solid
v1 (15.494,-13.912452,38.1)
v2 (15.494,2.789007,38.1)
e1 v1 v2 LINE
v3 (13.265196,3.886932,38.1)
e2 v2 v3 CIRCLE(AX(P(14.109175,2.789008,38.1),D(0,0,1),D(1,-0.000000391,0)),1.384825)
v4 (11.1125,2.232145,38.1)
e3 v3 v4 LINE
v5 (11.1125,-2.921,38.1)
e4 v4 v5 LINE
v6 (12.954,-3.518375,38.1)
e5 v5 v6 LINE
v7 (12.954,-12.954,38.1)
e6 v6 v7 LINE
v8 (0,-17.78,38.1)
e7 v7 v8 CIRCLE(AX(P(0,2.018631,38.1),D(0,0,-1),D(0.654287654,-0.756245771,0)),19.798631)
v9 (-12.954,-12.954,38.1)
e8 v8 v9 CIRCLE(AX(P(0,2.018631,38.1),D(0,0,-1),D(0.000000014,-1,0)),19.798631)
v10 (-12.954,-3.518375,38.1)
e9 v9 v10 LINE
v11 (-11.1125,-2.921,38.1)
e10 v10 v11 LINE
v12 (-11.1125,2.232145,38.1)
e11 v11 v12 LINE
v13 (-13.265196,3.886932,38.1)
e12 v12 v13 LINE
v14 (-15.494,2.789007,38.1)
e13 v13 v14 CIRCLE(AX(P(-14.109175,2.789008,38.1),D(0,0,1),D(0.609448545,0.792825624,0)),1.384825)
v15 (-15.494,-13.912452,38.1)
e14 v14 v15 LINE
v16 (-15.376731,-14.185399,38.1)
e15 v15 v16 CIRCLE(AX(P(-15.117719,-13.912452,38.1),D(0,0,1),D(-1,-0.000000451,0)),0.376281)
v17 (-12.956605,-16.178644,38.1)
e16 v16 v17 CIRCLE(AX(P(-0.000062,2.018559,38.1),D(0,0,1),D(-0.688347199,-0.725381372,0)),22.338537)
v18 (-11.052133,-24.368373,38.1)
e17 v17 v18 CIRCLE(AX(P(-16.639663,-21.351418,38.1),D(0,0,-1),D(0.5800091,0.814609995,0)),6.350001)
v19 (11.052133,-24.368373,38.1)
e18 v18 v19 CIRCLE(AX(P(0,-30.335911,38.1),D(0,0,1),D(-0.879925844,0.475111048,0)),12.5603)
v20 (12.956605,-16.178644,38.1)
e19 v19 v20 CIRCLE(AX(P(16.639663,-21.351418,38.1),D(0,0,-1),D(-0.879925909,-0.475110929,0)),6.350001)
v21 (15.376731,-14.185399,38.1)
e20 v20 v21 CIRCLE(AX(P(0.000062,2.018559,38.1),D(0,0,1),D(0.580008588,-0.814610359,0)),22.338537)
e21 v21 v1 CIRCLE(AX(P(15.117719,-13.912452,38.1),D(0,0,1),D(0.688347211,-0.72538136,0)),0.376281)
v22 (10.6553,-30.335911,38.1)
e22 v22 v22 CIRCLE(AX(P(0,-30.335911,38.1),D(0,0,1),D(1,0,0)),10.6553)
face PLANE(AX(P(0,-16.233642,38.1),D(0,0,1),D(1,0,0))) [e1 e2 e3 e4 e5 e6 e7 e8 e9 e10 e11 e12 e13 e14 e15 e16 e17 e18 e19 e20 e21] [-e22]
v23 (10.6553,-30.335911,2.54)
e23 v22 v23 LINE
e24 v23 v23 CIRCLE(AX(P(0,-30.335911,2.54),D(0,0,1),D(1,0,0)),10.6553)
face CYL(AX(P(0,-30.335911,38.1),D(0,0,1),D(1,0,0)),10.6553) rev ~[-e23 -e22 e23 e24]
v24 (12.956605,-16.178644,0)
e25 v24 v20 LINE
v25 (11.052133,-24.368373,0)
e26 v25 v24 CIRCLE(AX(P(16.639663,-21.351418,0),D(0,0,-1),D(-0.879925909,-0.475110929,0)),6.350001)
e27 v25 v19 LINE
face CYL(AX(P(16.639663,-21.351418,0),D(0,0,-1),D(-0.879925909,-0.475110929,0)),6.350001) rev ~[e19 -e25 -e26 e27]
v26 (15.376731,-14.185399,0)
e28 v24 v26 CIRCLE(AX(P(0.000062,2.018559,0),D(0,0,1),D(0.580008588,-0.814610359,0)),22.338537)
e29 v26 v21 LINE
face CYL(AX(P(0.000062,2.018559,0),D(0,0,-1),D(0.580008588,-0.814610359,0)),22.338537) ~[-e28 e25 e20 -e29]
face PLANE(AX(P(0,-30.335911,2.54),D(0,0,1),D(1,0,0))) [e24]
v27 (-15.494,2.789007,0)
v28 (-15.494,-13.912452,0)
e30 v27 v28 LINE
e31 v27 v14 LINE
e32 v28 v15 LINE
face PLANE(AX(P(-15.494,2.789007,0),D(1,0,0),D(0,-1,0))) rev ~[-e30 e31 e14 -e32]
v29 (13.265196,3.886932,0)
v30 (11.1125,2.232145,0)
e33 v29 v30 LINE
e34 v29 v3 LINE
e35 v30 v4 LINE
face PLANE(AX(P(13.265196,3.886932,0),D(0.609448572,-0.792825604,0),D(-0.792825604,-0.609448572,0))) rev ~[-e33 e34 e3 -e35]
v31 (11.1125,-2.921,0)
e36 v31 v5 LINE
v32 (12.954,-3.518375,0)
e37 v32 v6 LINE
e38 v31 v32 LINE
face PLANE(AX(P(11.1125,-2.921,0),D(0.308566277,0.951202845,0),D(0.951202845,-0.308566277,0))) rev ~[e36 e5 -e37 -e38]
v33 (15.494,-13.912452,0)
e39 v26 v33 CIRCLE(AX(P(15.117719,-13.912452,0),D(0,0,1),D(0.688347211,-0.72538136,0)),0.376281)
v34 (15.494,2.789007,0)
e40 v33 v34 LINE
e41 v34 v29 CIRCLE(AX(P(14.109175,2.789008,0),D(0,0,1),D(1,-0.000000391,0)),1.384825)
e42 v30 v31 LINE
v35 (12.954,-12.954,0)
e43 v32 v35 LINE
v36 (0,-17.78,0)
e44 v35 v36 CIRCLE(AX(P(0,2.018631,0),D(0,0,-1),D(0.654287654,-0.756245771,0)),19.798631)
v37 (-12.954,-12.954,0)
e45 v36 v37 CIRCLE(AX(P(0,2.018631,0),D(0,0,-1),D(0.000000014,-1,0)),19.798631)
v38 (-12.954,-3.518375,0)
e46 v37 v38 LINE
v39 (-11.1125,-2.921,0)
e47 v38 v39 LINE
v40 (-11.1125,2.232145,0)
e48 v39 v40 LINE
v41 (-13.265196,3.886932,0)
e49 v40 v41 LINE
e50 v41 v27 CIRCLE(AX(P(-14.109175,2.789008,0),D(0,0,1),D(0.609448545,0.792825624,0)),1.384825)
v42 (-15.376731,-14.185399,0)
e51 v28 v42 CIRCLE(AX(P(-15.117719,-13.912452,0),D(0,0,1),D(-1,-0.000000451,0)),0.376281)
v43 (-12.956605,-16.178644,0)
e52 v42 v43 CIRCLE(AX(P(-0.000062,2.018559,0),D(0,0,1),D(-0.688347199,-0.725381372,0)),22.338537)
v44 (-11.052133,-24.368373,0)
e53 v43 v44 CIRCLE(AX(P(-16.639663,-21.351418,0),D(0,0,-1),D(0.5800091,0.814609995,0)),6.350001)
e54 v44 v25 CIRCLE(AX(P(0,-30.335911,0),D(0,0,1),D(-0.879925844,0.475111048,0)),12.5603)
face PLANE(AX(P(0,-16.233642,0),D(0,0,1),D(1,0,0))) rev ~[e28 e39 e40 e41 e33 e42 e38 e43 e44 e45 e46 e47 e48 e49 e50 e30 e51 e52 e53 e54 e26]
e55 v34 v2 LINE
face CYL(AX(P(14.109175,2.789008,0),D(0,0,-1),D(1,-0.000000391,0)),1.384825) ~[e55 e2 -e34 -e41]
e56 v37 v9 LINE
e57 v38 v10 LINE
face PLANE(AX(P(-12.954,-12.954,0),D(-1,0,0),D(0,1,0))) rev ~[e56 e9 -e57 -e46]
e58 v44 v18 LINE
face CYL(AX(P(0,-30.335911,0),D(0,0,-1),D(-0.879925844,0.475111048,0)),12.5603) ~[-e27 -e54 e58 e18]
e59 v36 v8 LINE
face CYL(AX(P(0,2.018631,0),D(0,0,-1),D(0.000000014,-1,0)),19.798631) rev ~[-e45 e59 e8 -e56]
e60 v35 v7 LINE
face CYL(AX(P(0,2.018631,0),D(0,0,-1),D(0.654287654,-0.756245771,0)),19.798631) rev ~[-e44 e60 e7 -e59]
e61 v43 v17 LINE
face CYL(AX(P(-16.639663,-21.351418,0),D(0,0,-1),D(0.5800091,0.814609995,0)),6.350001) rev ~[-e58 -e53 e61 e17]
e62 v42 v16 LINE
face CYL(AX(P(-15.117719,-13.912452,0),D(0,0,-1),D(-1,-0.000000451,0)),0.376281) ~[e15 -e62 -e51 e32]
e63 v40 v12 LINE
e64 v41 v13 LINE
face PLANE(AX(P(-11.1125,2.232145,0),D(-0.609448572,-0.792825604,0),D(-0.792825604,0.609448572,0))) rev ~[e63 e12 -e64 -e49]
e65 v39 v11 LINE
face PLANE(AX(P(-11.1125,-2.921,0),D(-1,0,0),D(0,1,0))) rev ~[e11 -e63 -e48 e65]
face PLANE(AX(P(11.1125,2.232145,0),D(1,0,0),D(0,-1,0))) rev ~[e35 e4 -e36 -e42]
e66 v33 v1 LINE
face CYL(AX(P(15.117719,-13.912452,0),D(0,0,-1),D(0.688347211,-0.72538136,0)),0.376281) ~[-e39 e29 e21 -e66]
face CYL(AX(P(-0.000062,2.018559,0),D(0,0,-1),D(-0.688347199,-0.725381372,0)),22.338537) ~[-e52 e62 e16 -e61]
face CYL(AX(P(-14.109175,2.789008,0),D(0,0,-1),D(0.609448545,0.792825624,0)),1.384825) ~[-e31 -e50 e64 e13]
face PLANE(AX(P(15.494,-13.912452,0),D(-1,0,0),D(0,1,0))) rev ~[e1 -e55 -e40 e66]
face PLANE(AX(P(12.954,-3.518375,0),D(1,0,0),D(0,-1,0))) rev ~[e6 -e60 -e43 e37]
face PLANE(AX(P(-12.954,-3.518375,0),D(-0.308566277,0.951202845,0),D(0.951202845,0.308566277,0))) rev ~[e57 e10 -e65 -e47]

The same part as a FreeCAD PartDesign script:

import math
import FreeCAD as App
import Part
import Sketcher
Q = App.Units.Quantity

doc = App.newDocument("Part")
params = doc.addObject("Spreadsheet::Sheet", "Params")
for row, (alias, value) in enumerate([
    ("sketch1_radius", "0.25 in"),
    ("pad1_length", "1.5 in"),
    ("sketch2_diameter", "0.839 in"),
    ("pocket1_length", "1.4 in"),
], start=1):
    params.set(f"A{row}", alias)
    params.set(f"B{row}", "=" + value)
    params.setAlias(f"B{row}", alias)

body = doc.addObject("PartDesign::Body", "Body")

# Sketch on XY plane
sketch1 = doc.addObject("Sketcher::SketchObject", "Sketch")
body.addObject(sketch1)
sketch1.AttachmentSupport = (doc.XY_Plane, [""])
sketch1.MapMode = "FlatFace"
sketch1.addGeometry(Part.LineSegment(App.Vector(-11.11, -2.92, 0), App.Vector(-11.11, 2.23, 0)), False)
sketch1.addGeometry(Part.LineSegment(App.Vector(-11.11, 2.23, 0), App.Vector(-13.27, 3.89, 0)), False)
sketch1.addGeometry(Part.ArcOfCircle(Part.Circle(App.Vector(-14.11, 2.79, 0), App.Vector(0, 0, 1), 1.38), math.radians(52), math.radians(180)), False)
sketch1.addGeometry(Part.LineSegment(App.Vector(-15.49, 2.79, 0), App.Vector(-15.49, -13.91, 0)), False)
sketch1.addGeometry(Part.ArcOfCircle(Part.Circle(App.Vector(-15.12, -13.91, 0), App.Vector(0, 0, 1), 0.38), math.radians(-180), math.radians(-133)), False)
sketch1.addGeometry(Part.ArcOfCircle(Part.Circle(App.Vector(0, 2.02, 0), App.Vector(0, 0, 1), 22.34), math.radians(-133.5), math.radians(-125.45)), False)
sketch1.addGeometry(Part.ArcOfCircle(Part.Circle(App.Vector(-16.64, -21.35, 0), App.Vector(0, 0, 1), 6.35), math.radians(-28), math.radians(55)), False)
sketch1.addGeometry(Part.ArcOfCircle(Part.Circle(App.Vector(0, -30.34, 0), App.Vector(0, 0, 1), 12.56), math.radians(152), math.radians(388)), False)
sketch1.addGeometry(Part.ArcOfCircle(Part.Circle(App.Vector(16.64, -21.35, 0), App.Vector(0, 0, 1), 6.35), math.radians(125), math.radians(208)), False)
sketch1.addGeometry(Part.ArcOfCircle(Part.Circle(App.Vector(0, 2.02, 0), App.Vector(0, 0, 1), 22.34), math.radians(-54.55), math.radians(-46.5)), False)
sketch1.addGeometry(Part.ArcOfCircle(Part.Circle(App.Vector(15.12, -13.91, 0), App.Vector(0, 0, 1), 0.38), math.radians(-47), math.radians(0)), False)
sketch1.addGeometry(Part.LineSegment(App.Vector(15.49, -13.91, 0), App.Vector(15.49, 2.79, 0)), False)
sketch1.addGeometry(Part.ArcOfCircle(Part.Circle(App.Vector(14.11, 2.79, 0), App.Vector(0, 0, 1), 1.38), math.radians(0), math.radians(128)), False)
sketch1.addGeometry(Part.LineSegment(App.Vector(13.27, 3.89, 0), App.Vector(11.11, 2.23, 0)), False)
sketch1.addGeometry(Part.LineSegment(App.Vector(11.11, 2.23, 0), App.Vector(11.11, -2.92, 0)), False)
sketch1.addGeometry(Part.LineSegment(App.Vector(11.11, -2.92, 0), App.Vector(12.95, -3.52, 0)), False)
sketch1.addGeometry(Part.LineSegment(App.Vector(12.95, -3.52, 0), App.Vector(12.95, -12.95, 0)), False)
sketch1.addGeometry(Part.ArcOfCircle(Part.Circle(App.Vector(0, 2.02, 0), App.Vector(0, 0, 1), 19.8), math.radians(-90), math.radians(-49)), False)
sketch1.addGeometry(Part.ArcOfCircle(Part.Circle(App.Vector(0, 2.02, 0), App.Vector(0, 0, 1), 19.8), math.radians(-131), math.radians(-90)), False)
sketch1.addGeometry(Part.LineSegment(App.Vector(-12.95, -12.95, 0), App.Vector(-12.95, -3.52, 0)), False)
sketch1.addGeometry(Part.LineSegment(App.Vector(-12.95, -3.52, 0), App.Vector(-11.11, -2.92, 0)), False)
sketch1.addConstraint(Sketcher.Constraint("Coincident", 0, 2, 1, 1))
sketch1.addConstraint(Sketcher.Constraint("Tangent", 1, 2, 2, 1))
sketch1.addConstraint(Sketcher.Constraint("Tangent", 2, 2, 3, 1))
sketch1.addConstraint(Sketcher.Constraint("Tangent", 3, 2, 4, 1))
sketch1.addConstraint(Sketcher.Constraint("Tangent", 4, 2, 5, 1))
sketch1.addConstraint(Sketcher.Constraint("Tangent", 5, 2, 6, 2))
sketch1.addConstraint(Sketcher.Constraint("Tangent", 6, 1, 7, 1))
sketch1.addConstraint(Sketcher.Constraint("Tangent", 7, 2, 8, 2))
sketch1.addConstraint(Sketcher.Constraint("Tangent", 8, 1, 9, 1))
sketch1.addConstraint(Sketcher.Constraint("Tangent", 9, 2, 10, 1))
sketch1.addConstraint(Sketcher.Constraint("Tangent", 10, 2, 11, 1))
sketch1.addConstraint(Sketcher.Constraint("Tangent", 11, 2, 12, 1))
sketch1.addConstraint(Sketcher.Constraint("Tangent", 12, 2, 13, 1))
sketch1.addConstraint(Sketcher.Constraint("Coincident", 13, 2, 14, 1))
sketch1.addConstraint(Sketcher.Constraint("Coincident", 14, 2, 15, 1))
sketch1.addConstraint(Sketcher.Constraint("Coincident", 15, 2, 16, 1))
sketch1.addConstraint(Sketcher.Constraint("Coincident", 16, 2, 17, 2))
sketch1.addConstraint(Sketcher.Constraint("Tangent", 17, 1, 18, 2))
sketch1.addConstraint(Sketcher.Constraint("Coincident", 18, 1, 19, 1))
sketch1.addConstraint(Sketcher.Constraint("Coincident", 19, 2, 20, 1))
sketch1.addConstraint(Sketcher.Constraint("Coincident", 20, 2, 0, 1))
sketch1.addConstraint(Sketcher.Constraint("Vertical", 0))
sketch1.addConstraint(Sketcher.Constraint("Vertical", 3))
sketch1.addConstraint(Sketcher.Constraint("Vertical", 11))
sketch1.addConstraint(Sketcher.Constraint("Vertical", 14))
sketch1.addConstraint(Sketcher.Constraint("Vertical", 16))
sketch1.addConstraint(Sketcher.Constraint("Vertical", 19))
sketch1.addConstraint(Sketcher.Constraint("Equal", 6, 8))
sketch1.addConstraint(Sketcher.Constraint("Equal", 5, 9))
sketch1.addConstraint(Sketcher.Constraint("Equal", 4, 10))
sketch1.addConstraint(Sketcher.Constraint("Equal", 2, 12))
sketch1.addConstraint(Sketcher.Constraint("Equal", 17, 18))
sketch1.addConstraint(Sketcher.Constraint("Symmetric", 6, 3, 8, 3, -2))
sketch1.addConstraint(Sketcher.Constraint("Symmetric", 4, 3, 10, 3, -2))
sketch1.addConstraint(Sketcher.Constraint("Symmetric", 1, 2, 12, 2, -2))
sketch1.addConstraint(Sketcher.Constraint("Symmetric", 16, 2, 18, 1, -2))
sketch1.addConstraint(Sketcher.Constraint("Symmetric", 14, 2, 20, 2, -2))
sketch1.addConstraint(Sketcher.Constraint("PointOnObject", 17, 1, -2))
sketch1.addConstraint(Sketcher.Constraint("Horizontal", 15, 2, 19, 2))
sketch1.addConstraint(Sketcher.Constraint("Radius", 6, Q("0.25 in")))
sketch1.addConstraint(Sketcher.Constraint("DistanceY", 17, 1, -1, 1, Q("0.7 in")))
sketch1.addConstraint(Sketcher.Constraint("Radius", 7, Q("0.4945 in")))
sketch1.addConstraint(Sketcher.Constraint("DistanceX", 15, 2, 11, 2, Q("0.1 in")))
sketch1.addConstraint(Sketcher.Constraint("DistanceX", 2, 2, -1, 1, Q("0.61 in")))
sketch1.addConstraint(Sketcher.Constraint("DistanceY", 16, 2, -1, 1, Q("0.51 in")))
sketch1.addConstraint(Sketcher.Constraint("DistanceX", 0, 2, -1, 1, Q("0.4375 in")))
sketch1.addConstraint(Sketcher.Constraint("DistanceY", 14, 2, -1, 1, Q("0.115 in")))
sketch1.addConstraint(Sketcher.Constraint("Radius", 4, Q("0.376281 mm")))
sketch1.addConstraint(Sketcher.Constraint("Radius", 2, Q("1.384825 mm")))
sketch1.addConstraint(Sketcher.Constraint("Radius", 5, Q("22.338537 mm")))
sketch1.addConstraint(Sketcher.Constraint("DistanceY", 3, 2, 3, 1, Q("16.701459 mm")))
sketch1.addConstraint(Sketcher.Constraint("DistanceY", 4, 2, -1, 1, Q("14.185399 mm")))
sketch1.addConstraint(Sketcher.Constraint("DistanceX", 6, 3, 5, 3, Q("16.639601 mm")))
sketch1.addConstraint(Sketcher.Constraint("DistanceY", 18, 3, 1, 2, Q("1.868301 mm")))
sketch1.addConstraint(Sketcher.Constraint("DistanceX", 4, 2, 6, 1, Q("4.324598 mm")))
sketch1.addConstraint(Sketcher.Constraint("Distance", 15, Q("1.93597 mm")))
sketch1.setExpression("Constraints[39]", "Params.sketch1_radius")
pad1 = doc.addObject("PartDesign::Pad", "Pad")
body.addObject(pad1)
pad1.Profile = sketch1
pad1.setExpression("Length", "Params.pad1_length")

# Sketch on XY plane
sketch2 = doc.addObject("Sketcher::SketchObject", "Sketch001")
body.addObject(sketch2)
sketch2.AttachmentSupport = (doc.XY_Plane, [""])
sketch2.MapMode = "FlatFace"
sketch2.AttachmentOffset = App.Placement(App.Vector(0, 0, 1.5 * 25.4), App.Rotation())
sketch2.addGeometry(Part.Circle(App.Vector(0, -30, 0), App.Vector(0, 0, 1), 11), False)
sketch2.addConstraint(Sketcher.Constraint("PointOnObject", 0, 3, -2))
sketch2.addConstraint(Sketcher.Constraint("Diameter", 0, Q("0.839 in")))
sketch2.addConstraint(Sketcher.Constraint("DistanceY", 0, 3, -1, 1, Q("30.335911 mm")))
sketch2.setExpression("Constraints[1]", "Params.sketch2_diameter")
pocket1 = doc.addObject("PartDesign::Pocket", "Pocket")
body.addObject(pocket1)
pocket1.Profile = sketch2
pocket1.setExpression("Length", "Params.pocket1_length")

doc.recompute()
